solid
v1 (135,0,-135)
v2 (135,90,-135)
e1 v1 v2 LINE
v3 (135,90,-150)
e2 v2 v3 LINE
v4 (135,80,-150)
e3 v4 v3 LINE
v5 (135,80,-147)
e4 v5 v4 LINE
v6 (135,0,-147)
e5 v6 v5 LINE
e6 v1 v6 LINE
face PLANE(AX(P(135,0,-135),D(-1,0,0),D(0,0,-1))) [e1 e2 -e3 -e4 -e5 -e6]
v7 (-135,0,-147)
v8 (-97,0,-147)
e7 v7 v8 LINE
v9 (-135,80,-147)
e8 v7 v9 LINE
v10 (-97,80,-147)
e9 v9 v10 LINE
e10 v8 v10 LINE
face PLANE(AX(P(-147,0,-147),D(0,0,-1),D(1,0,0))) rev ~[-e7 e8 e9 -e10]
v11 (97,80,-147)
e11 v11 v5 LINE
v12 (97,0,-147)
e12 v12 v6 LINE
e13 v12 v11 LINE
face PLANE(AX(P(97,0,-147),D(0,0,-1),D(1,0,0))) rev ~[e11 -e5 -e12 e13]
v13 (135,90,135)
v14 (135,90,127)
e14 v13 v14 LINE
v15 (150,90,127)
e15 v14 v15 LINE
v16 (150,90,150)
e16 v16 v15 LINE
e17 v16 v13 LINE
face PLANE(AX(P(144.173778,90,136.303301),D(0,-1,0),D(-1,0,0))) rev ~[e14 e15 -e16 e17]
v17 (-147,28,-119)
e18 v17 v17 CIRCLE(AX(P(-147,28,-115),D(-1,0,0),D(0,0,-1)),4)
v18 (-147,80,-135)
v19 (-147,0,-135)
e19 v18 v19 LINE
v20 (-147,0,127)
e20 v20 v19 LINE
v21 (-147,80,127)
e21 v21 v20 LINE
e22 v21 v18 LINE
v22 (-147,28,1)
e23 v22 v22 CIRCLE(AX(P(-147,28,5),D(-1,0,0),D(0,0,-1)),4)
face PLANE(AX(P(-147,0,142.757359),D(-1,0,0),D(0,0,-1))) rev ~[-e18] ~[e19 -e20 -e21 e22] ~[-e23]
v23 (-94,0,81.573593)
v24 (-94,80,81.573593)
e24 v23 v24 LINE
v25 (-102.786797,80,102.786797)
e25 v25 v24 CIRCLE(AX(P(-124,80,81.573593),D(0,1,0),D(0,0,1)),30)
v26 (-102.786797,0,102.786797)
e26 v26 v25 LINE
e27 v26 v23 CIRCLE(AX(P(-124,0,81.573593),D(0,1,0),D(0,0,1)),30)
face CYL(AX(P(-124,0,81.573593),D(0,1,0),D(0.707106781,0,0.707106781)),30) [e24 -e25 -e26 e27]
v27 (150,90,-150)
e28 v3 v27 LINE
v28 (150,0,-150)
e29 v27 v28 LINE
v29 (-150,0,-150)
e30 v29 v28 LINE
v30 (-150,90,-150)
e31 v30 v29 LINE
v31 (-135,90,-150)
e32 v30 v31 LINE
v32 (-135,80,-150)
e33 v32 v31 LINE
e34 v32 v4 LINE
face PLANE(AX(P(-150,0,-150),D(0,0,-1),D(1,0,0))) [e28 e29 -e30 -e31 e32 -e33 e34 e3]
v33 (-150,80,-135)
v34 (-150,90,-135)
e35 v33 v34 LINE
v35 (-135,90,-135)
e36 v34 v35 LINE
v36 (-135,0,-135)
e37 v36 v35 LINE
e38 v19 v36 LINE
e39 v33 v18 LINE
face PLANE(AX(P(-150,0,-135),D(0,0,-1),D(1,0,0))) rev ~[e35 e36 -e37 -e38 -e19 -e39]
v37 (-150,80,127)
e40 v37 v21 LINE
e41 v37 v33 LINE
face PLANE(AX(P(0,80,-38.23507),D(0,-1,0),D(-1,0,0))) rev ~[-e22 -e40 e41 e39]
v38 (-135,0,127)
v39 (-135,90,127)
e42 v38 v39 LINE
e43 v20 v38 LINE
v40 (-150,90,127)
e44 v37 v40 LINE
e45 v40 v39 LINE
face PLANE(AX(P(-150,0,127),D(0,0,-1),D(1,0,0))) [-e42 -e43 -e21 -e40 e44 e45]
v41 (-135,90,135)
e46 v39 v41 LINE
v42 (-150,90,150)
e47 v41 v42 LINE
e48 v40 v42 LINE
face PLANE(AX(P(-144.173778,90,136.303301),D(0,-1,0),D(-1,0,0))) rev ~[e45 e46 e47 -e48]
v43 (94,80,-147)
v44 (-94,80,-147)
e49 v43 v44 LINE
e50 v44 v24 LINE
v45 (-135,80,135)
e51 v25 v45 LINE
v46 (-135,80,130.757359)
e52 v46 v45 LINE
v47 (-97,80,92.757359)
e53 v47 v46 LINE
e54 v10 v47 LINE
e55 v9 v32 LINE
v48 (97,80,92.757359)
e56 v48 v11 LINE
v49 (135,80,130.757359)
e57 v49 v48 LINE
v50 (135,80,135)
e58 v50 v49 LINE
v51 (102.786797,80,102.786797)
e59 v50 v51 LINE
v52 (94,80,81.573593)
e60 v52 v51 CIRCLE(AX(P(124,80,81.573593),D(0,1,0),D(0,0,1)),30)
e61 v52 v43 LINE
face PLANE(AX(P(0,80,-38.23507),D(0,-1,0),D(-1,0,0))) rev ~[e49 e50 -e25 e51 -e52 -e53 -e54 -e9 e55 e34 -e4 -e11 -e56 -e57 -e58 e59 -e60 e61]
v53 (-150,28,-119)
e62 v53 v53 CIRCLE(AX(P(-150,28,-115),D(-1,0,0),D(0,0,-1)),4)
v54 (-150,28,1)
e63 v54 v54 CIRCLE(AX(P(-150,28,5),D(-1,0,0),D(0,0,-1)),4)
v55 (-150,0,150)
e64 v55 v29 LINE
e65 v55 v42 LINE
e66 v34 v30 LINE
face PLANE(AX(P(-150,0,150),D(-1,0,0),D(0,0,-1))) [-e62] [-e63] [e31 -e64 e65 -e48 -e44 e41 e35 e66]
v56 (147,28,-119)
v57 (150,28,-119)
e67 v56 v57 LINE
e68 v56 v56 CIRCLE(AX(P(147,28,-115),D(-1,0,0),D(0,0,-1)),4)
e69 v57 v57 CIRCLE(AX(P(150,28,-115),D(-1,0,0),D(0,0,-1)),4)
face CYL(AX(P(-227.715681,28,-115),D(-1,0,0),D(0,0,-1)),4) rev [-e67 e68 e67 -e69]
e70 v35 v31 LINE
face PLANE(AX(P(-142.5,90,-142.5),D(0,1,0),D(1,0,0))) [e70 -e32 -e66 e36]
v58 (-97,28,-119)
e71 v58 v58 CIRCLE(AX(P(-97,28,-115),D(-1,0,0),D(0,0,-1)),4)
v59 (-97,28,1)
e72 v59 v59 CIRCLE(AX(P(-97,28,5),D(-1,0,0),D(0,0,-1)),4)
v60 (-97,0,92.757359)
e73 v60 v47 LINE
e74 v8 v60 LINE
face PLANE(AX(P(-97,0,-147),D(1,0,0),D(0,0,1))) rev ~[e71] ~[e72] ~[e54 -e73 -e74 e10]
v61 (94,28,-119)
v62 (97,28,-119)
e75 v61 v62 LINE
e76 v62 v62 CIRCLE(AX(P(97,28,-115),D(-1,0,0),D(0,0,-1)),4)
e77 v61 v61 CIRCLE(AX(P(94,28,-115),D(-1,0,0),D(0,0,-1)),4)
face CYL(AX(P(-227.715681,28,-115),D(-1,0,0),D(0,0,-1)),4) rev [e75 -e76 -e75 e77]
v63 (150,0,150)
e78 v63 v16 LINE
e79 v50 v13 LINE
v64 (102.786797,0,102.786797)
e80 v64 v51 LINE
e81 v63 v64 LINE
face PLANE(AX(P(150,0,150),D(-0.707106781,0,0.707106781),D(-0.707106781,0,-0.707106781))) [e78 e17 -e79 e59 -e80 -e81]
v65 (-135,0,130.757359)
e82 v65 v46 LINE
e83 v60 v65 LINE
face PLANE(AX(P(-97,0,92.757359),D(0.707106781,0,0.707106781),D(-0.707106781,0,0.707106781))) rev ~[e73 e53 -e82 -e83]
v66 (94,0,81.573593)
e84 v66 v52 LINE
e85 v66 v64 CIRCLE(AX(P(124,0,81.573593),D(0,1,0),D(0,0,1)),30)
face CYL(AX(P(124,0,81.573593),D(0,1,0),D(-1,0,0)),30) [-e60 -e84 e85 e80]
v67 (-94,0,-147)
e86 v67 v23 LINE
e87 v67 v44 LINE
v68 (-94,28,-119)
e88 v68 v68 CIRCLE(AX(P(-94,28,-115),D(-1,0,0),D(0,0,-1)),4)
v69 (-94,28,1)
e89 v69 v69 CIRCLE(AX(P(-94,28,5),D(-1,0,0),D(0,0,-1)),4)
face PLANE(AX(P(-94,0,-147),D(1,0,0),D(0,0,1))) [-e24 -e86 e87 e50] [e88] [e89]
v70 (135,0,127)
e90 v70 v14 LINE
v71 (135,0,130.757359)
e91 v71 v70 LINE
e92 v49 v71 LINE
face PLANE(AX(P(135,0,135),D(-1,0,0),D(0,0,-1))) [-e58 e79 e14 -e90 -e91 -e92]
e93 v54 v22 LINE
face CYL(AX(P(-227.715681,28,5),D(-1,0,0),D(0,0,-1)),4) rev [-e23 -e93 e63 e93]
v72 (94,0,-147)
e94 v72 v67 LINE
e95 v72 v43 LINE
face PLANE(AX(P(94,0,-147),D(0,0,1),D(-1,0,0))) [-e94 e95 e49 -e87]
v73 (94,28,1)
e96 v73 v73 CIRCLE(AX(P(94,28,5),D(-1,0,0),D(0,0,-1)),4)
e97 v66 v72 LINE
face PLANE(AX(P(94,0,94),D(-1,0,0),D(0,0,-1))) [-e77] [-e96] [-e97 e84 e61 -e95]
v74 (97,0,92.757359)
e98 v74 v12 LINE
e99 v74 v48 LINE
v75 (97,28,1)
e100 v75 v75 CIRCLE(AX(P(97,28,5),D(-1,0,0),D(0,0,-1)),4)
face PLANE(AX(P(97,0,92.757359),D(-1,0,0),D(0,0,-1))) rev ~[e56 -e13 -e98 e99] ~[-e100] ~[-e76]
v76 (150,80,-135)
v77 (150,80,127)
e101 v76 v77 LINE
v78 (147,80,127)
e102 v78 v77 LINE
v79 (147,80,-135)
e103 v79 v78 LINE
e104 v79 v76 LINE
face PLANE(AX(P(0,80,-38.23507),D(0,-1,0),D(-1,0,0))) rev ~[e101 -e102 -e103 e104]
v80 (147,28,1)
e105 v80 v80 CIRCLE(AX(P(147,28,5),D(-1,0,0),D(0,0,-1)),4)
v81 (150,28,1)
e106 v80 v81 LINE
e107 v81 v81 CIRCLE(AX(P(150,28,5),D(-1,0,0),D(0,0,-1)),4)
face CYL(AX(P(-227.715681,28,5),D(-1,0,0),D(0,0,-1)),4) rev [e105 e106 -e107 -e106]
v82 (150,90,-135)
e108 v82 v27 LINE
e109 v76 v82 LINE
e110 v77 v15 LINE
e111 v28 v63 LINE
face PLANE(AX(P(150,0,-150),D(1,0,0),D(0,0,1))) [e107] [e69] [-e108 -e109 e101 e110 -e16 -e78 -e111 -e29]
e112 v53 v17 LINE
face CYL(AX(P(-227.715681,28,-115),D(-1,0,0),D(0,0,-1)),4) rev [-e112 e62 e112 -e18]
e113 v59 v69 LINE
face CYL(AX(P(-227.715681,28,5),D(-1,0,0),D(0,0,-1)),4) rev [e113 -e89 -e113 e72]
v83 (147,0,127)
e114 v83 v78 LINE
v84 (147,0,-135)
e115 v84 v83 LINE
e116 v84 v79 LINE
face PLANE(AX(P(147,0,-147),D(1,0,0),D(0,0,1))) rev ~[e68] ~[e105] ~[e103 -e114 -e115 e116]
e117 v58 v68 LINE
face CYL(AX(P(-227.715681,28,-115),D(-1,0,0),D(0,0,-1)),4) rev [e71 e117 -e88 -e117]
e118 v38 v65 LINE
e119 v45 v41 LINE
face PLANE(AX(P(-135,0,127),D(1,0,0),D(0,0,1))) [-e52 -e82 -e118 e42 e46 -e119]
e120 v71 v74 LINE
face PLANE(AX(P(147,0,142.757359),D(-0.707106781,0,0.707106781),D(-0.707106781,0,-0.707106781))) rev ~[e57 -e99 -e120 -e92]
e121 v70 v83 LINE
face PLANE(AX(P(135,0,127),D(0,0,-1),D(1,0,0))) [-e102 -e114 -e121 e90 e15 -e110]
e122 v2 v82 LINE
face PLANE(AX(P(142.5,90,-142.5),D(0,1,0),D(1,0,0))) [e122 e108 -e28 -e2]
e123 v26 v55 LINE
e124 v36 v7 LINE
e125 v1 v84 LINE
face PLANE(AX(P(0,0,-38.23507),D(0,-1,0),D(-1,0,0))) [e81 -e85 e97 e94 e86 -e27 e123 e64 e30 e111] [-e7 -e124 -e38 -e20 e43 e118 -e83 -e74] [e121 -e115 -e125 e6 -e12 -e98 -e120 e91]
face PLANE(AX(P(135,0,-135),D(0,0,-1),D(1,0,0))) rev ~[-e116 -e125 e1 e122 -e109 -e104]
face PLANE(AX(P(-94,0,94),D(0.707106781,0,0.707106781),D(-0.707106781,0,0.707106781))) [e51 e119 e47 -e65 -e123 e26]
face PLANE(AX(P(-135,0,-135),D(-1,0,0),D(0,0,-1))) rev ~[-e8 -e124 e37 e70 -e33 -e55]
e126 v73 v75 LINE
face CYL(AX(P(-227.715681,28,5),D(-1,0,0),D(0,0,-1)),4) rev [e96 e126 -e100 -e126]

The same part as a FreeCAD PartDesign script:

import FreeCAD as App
import Part
import Sketcher

V = App.Vector
Q = App.Units.Quantity


def edges_at(feature, points):
    """Names of the edges that pass closest to the given points."""
    edges = feature.Shape.Edges
    near = lambda p: min(range(len(edges)), key=lambda i: edges[i].distToShape(Part.Vertex(*p))[0])
    return sorted({f"Edge{near(p) + 1}" for p in points})


def add_polygon(sketch, points):
    """Adds a closed chain of lines whose ends are joined by coincident constraints."""
    first, n = sketch.GeometryCount, len(points)
    for a, b in zip(points, points[1:] + points[:1]):
        sketch.addGeometry(Part.LineSegment(App.Vector(*a, 0), App.Vector(*b, 0)), False)
    for i in range(n):
        sketch.addConstraint(Sketcher.Constraint("Coincident", first + i, 2, first + (i + 1) % n, 1))

doc = App.newDocument("Part")
body = doc.addObject("PartDesign::Body", "Body")

sketch1 = body.newObject("Sketcher::SketchObject", "Sketch")
sketch1.AttachmentSupport = (doc.getObject("XZ_Plane"), [""])
sketch1.MapMode = "FlatFace"
add_polygon(sketch1, [(150, -150), (-150, -150), (-150, 150), (-94, 94), (-94, -147), (94, -147), (94, 94), (150, 150)])
add_polygon(sketch1, [(147, -147), (147, 142.757359), (97, 92.757359), (97, -147)])
add_polygon(sketch1, [(-147, -147), (-97, -147), (-97, 92.757359), (-147, 142.757359)])
sketch1.addConstraint(Sketcher.Constraint("Horizontal", 0))
sketch1.addConstraint(Sketcher.Constraint("Vertical", 1))
sketch1.addConstraint(Sketcher.Constraint("Vertical", 3))
sketch1.addConstraint(Sketcher.Constraint("Horizontal", 4))
sketch1.addConstraint(Sketcher.Constraint("Vertical", 5))
sketch1.addConstraint(Sketcher.Constraint("Vertical", 7))
sketch1.addConstraint(Sketcher.Constraint("Vertical", 8))
sketch1.addConstraint(Sketcher.Constraint("Vertical", 10))
sketch1.addConstraint(Sketcher.Constraint("Horizontal", 11))
sketch1.addConstraint(Sketcher.Constraint("Horizontal", 12))
sketch1.addConstraint(Sketcher.Constraint("Vertical", 13))
sketch1.addConstraint(Sketcher.Constraint("Vertical", 15))
sketch1.addConstraint(Sketcher.Constraint("Symmetric", 0, 2, 6, 2, -1, 1))
sketch1.addConstraint(Sketcher.Constraint("Symmetric", 2, 2, 5, 2, -2))
sketch1.addConstraint(Sketcher.Constraint("Symmetric", 10, 2, 12, 2, -2))
sketch1.addConstraint(Sketcher.Constraint("Symmetric", 8, 2, 14, 2, -2))
sketch1.addConstraint(Sketcher.Constraint("Perpendicular", 2, 6))
sketch1.addConstraint(Sketcher.Constraint("Parallel", 6, 9))
sketch1.addConstraint(Sketcher.Constraint("Perpendicular", 9, 14))
sketch1.addConstraint(Sketcher.Constraint("Horizontal", 1, 2, 6, 2))
sketch1.addConstraint(Sketcher.Constraint("Horizontal", 4, 2, 10, 2))
sketch1.addConstraint(Sketcher.Constraint("Equal", 0, 1))
sketch1.addConstraint(Sketcher.Constraint("DistanceX", 0, 2, 0, 1, Q("300 mm")))
sketch1.addConstraint(Sketcher.Constraint("DistanceX", 4, 1, 4, 2, Q("188 mm")))
sketch1.addConstraint(Sketcher.Constraint("DistanceX", 11, 1, 11, 2, Q("50 mm")))
sketch1.addConstraint(Sketcher.Constraint("DistanceY", 3, 2, 3, 1, Q("241 mm")))
sketch1.addConstraint(Sketcher.Constraint("DistanceX", -1, 1, 8, 2, Q("147 mm")))
sketch1.addConstraint(Sketcher.Constraint("DistanceY", 8, 1, 8, 2, Q("289.757359 mm")))
pad1 = body.newObject("PartDesign::Pad", "Pad")
pad1.Profile = sketch1
pad1.Length = 80
pad1.Reversed = True

sketch2 = body.newObject("Sketcher::SketchObject", "Sketch001")
sketch2.AttachmentSupport = (doc.getObject("YZ_Plane"), [""])
sketch2.MapMode = "FlatFace"
sketch2.addGeometry(Part.Circle(V(28, -115, 0), V(0, 0, 1), 4), False)
sketch2.addGeometry(Part.Circle(V(28, 5, 0), V(0, 0, 1), 4), False)
sketch2.addConstraint(Sketcher.Constraint("Equal", 0, 1))
sketch2.addConstraint(Sketcher.Constraint("Vertical", 0, 3, 1, 3))
sketch2.addConstraint(Sketcher.Constraint("Diameter", 0, Q("8 mm")))
sketch2.addConstraint(Sketcher.Constraint("DistanceX", -1, 1, 0, 3, Q("28 mm")))
sketch2.addConstraint(Sketcher.Constraint("DistanceY", 0, 3, -1, 1, Q("115 mm")))
sketch2.addConstraint(Sketcher.Constraint("DistanceY", -1, 1, 1, 3, Q("5 mm")))
pocket1 = body.newObject("PartDesign::Pocket", "Pocket")
pocket1.Profile = sketch2
pocket1.Type = "ThroughAll"
pocket1.Midplane = True

sketch3 = body.newObject("Sketcher::SketchObject", "Sketch002")
sketch3.AttachmentSupport = (doc.getObject("XZ_Plane"), [""])
sketch3.MapMode = "FlatFace"
add_polygon(sketch3, [(-135, 127), (-150, 127), (-150, 150), (-135, 135)])
add_polygon(sketch3, [(135, 135), (150, 150), (150, 127), (135, 127)])
add_polygon(sketch3, [(135, -150), (135, -135), (150, -135), (150, -150)])
add_polygon(sketch3, [(-150, -150), (-150, -135), (-135, -135), (-135, -150)])
sketch3.addConstraint(Sketcher.Constraint("Horizontal", 0))
sketch3.addConstraint(Sketcher.Constraint("Vertical", 1))
sketch3.addConstraint(Sketcher.Constraint("Vertical", 3))
sketch3.addConstraint(Sketcher.Constraint("Vertical", 5))
sketch3.addConstraint(Sketcher.Constraint("Horizontal", 6))
sketch3.addConstraint(Sketcher.Constraint("Vertical", 7))
sketch3.addConstraint(Sketcher.Constraint("Vertical", 8))
sketch3.addConstraint(Sketcher.Constraint("Horizontal", 9))
sketch3.addConstraint(Sketcher.Constraint("Vertical", 10))
sketch3.addConstraint(Sketcher.Constraint("Horizontal", 11))
sketch3.addConstraint(Sketcher.Constraint("Vertical", 12))
sketch3.addConstraint(Sketcher.Constraint("Horizontal", 13))
sketch3.addConstraint(Sketcher.Constraint("Vertical", 14))
sketch3.addConstraint(Sketcher.Constraint("Horizontal", 15))
sketch3.addConstraint(Sketcher.Constraint("Symmetric", 2, 2, 8, 2, -1, 1))
sketch3.addConstraint(Sketcher.Constraint("Symmetric", 1, 2, 10, 2, -1, 1))
sketch3.addConstraint(Sketcher.Constraint("Symmetric", 7, 2, 13, 2, -1, 1))
sketch3.addConstraint(Sketcher.Constraint("Symmetric", 4, 2, 15, 2, -1, 1))
sketch3.addConstraint(Sketcher.Constraint("Symmetric", 1, 2, 4, 2, -2))
sketch3.addConstraint(Sketcher.Constraint("Symmetric", 3, 2, 6, 2, -2))
sketch3.addConstraint(Sketcher.Constraint("Perpendicular", 2, 4))
sketch3.addConstraint(Sketcher.Constraint("Horizontal", 2, 2, 7, 2))
sketch3.addConstraint(Sketcher.Constraint("DistanceX", 0, 2, 0, 1, Q("15 mm")))
sketch3.addConstraint(Sketcher.Constraint("DistanceY", 1, 1, 1, 2, Q("23 mm")))
sketch3.addConstraint(Sketcher.Constraint("DistanceX", 0, 2, -1, 1, Q("150 mm")))
sketch3.addConstraint(Sketcher.Constraint("DistanceY", -1, 1, 0, 2, Q("127 mm")))
pad2 = body.newObject("PartDesign::Pad", "Pad001")
pad2.Profile = sketch3
pad2.Length = 90
pad2.Reversed = True
doc.recompute()

fillet = body.newObject("PartDesign::Fillet", "Fillet")
fillet.Base = (pad2, edges_at(pad2, [(94, 40, 94), (-94, 40, 94)]))
fillet.Radius = 30

doc.recompute()
